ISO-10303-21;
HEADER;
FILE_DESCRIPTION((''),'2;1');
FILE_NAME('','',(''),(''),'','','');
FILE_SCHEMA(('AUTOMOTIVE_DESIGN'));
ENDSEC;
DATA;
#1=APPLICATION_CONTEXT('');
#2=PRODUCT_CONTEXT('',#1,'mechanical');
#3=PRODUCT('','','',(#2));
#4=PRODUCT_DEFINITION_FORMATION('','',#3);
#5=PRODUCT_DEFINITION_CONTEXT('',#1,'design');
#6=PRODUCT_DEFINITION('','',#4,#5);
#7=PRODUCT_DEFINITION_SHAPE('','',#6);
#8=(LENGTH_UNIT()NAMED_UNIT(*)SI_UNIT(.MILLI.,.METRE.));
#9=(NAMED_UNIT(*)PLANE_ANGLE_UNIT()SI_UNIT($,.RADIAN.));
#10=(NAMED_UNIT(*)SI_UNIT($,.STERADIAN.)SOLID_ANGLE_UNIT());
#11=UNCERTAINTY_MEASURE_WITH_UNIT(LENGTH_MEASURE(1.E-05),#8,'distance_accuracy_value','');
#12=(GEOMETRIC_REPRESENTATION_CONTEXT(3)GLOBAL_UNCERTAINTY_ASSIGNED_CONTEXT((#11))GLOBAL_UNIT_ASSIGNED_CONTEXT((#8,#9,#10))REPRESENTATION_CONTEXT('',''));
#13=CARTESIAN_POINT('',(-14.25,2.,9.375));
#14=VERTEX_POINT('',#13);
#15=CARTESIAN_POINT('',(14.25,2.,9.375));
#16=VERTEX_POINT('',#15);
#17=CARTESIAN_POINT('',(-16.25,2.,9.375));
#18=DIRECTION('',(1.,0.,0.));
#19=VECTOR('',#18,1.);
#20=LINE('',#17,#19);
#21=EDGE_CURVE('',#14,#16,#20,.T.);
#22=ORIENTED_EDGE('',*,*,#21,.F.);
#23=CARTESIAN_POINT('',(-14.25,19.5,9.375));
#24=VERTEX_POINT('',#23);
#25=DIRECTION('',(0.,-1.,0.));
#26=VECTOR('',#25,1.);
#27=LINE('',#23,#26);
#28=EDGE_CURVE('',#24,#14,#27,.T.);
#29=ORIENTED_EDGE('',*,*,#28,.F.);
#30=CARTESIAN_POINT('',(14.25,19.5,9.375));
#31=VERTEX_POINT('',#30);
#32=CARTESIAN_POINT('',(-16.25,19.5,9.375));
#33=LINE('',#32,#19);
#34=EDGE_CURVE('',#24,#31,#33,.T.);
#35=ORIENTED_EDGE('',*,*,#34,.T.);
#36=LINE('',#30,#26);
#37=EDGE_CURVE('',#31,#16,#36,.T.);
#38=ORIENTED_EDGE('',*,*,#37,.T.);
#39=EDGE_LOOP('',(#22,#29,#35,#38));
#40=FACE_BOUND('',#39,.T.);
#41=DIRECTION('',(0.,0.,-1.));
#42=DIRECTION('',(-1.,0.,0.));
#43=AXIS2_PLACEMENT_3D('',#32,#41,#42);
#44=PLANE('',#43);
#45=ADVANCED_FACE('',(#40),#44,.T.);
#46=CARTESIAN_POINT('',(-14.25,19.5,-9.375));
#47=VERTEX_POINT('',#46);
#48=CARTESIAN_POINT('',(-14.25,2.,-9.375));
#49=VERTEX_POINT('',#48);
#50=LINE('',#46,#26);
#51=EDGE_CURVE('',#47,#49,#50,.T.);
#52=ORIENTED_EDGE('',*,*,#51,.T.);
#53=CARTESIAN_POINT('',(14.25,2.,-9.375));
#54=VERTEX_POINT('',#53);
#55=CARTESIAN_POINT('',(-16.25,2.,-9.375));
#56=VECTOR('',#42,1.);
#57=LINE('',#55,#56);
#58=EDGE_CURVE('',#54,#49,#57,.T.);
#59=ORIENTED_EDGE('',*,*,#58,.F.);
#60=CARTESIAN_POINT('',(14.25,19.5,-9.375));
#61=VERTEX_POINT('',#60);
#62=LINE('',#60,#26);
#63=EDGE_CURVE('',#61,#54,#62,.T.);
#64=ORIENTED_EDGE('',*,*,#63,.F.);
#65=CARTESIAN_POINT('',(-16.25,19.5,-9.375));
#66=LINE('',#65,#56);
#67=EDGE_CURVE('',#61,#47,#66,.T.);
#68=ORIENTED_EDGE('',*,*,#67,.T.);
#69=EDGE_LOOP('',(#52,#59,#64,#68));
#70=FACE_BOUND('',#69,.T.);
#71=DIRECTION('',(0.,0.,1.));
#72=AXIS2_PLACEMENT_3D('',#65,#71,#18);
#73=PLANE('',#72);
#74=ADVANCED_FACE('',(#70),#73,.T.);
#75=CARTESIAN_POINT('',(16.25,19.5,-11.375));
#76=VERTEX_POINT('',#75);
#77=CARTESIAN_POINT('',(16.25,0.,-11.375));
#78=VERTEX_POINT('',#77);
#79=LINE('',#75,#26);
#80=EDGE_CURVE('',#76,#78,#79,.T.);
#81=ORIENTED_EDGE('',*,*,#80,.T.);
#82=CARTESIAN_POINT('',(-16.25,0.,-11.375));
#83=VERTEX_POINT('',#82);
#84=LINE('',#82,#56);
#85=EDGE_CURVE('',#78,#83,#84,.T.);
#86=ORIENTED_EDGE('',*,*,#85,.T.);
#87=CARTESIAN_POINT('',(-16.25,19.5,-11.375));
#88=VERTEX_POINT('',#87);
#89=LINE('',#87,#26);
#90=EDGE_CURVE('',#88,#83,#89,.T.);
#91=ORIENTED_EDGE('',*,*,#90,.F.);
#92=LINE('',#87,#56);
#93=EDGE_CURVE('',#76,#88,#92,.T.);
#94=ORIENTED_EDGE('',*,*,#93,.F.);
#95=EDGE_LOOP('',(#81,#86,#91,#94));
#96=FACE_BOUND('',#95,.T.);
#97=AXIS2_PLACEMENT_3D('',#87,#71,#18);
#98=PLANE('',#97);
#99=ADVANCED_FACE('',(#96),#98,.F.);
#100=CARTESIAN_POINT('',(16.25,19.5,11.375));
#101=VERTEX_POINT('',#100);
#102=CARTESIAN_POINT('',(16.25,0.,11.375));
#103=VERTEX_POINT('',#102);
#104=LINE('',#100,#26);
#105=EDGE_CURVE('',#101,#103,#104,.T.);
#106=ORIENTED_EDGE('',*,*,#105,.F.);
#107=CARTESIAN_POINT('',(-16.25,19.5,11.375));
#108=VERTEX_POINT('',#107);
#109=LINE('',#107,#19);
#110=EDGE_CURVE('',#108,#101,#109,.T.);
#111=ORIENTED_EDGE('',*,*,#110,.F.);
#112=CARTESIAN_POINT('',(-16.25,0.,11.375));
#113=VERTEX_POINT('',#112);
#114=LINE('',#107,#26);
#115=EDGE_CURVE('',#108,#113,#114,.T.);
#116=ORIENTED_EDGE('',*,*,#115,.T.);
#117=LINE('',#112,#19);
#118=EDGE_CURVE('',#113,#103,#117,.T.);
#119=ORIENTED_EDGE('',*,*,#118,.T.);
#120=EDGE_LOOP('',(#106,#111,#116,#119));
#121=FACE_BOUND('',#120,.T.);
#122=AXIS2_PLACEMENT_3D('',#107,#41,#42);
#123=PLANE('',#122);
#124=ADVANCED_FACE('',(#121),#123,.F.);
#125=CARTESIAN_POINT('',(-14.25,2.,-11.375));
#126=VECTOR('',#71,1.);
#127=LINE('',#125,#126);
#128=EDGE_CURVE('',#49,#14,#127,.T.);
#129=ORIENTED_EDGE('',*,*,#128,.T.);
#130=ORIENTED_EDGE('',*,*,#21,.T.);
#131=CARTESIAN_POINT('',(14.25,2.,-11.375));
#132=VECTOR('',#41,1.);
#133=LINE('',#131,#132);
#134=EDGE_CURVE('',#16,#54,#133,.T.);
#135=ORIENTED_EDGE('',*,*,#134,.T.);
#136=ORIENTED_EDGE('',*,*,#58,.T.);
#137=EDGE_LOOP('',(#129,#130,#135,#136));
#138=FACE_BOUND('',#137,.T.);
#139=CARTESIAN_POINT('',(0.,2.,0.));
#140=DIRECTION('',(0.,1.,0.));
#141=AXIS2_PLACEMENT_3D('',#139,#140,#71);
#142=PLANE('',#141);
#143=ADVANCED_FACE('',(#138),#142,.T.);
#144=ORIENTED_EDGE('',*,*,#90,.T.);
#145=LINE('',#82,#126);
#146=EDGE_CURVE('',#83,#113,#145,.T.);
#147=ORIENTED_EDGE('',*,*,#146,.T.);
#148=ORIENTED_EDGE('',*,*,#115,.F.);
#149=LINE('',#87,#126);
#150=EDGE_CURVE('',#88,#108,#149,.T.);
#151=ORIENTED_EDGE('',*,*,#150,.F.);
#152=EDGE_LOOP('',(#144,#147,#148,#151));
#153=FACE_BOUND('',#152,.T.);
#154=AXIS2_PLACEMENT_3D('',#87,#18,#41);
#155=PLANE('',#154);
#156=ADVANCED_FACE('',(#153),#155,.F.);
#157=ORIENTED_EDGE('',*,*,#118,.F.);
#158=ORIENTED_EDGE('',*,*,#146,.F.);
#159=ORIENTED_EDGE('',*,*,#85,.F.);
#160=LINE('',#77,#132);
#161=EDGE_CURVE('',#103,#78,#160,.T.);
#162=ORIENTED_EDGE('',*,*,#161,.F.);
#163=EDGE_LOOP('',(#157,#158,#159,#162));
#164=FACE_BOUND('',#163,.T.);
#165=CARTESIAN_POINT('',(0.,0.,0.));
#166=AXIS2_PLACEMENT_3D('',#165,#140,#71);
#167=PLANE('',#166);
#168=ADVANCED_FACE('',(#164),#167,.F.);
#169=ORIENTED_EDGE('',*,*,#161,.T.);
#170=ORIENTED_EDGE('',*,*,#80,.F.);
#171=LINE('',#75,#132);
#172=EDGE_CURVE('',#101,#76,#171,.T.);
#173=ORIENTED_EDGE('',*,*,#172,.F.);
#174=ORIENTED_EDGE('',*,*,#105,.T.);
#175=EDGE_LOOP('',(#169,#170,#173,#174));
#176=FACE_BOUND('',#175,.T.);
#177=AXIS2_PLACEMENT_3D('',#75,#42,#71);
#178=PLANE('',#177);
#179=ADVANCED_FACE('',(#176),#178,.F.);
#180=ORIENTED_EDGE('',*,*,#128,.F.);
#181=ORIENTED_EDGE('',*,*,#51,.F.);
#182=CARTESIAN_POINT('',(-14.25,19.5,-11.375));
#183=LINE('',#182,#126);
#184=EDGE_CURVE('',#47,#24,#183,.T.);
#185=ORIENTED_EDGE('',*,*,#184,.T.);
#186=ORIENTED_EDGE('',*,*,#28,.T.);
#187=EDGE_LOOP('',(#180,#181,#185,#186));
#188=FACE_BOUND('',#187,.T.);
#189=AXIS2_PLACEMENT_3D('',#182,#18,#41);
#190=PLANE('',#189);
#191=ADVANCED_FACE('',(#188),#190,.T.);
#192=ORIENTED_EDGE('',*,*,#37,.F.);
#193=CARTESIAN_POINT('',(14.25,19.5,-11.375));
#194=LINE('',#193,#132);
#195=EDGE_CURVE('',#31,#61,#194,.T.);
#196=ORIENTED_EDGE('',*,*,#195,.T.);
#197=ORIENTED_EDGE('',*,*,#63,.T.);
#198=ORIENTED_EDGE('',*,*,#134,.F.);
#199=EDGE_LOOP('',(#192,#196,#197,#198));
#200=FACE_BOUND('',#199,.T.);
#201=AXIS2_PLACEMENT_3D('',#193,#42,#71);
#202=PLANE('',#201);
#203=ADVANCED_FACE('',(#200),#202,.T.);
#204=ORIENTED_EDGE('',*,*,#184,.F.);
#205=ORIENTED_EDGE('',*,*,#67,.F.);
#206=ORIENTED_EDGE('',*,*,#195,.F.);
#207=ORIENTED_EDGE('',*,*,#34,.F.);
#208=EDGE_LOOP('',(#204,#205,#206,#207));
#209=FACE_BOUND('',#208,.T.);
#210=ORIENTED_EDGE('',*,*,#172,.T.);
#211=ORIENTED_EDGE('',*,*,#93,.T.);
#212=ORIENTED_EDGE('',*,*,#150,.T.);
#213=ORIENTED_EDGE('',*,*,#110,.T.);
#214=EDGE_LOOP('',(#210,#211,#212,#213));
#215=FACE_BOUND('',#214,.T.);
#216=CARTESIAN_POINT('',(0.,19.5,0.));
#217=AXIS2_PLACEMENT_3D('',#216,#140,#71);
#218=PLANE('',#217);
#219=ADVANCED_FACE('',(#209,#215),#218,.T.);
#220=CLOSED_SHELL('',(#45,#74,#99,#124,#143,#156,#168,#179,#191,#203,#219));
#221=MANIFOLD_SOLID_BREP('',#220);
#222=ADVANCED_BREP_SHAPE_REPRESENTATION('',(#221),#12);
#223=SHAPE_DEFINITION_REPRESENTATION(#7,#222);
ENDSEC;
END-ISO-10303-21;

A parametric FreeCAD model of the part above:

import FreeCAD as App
import Part
import Sketcher
Q = App.Units.Quantity


def faces_at(feature, points):
    """Names of the faces that lie closest to the given points."""
    faces = feature.Shape.Faces
    near = lambda p: min(range(len(faces)), key=lambda i: faces[i].distToShape(Part.Vertex(*p))[0])
    return sorted({f"Face{near(p) + 1}" for p in points})


def add_polygon(sketch, points):
    """Adds a closed chain of lines whose ends are joined by coincident constraints."""
    first, n = sketch.GeometryCount, len(points)
    for a, b in zip(points, points[1:] + points[:1]):
        sketch.addGeometry(Part.LineSegment(App.Vector(*a, 0), App.Vector(*b, 0)), False)
    for i in range(n):
        sketch.addConstraint(Sketcher.Constraint("Coincident", first + i, 2, first + (i + 1) % n, 1))

doc = App.newDocument("Part")
params = doc.addObject("Spreadsheet::Sheet", "Params")
for row, (alias, value) in enumerate([
    ("sketch1_width", "32.5 mm"),
    ("sketch1_height", "22.75 mm"),
    ("pad1_length", "19.5 mm"),
    ("thickness_wall", "2 mm"),
], start=1):
    params.set(f"A{row}", alias)
    params.set(f"B{row}", "=" + value)
    params.setAlias(f"B{row}", alias)

body = doc.addObject("PartDesign::Body", "Body")

# Sketch on XZ plane
sketch1 = body.newObject("Sketcher::SketchObject", "Sketch")
sketch1.AttachmentSupport = (doc.getObject("XZ_Plane"), [""])
sketch1.MapMode = "FlatFace"
add_polygon(sketch1, [(-16, -11), (-16, 11), (16, 11), (16, -11)])  # lines 0-3
sketch1.addConstraint(Sketcher.Constraint("Vertical", 0))
sketch1.addConstraint(Sketcher.Constraint("Horizontal", 1))
sketch1.addConstraint(Sketcher.Constraint("Vertical", 2))
sketch1.addConstraint(Sketcher.Constraint("Horizontal", 3))
sketch1.addConstraint(Sketcher.Constraint("Symmetric", 0, 2, 2, 2, -1, 1))
sketch1.addConstraint(Sketcher.Constraint("DistanceX", 1, 1, 1, 2, Q("32.5 mm")))
sketch1.addConstraint(Sketcher.Constraint("DistanceY", 0, 1, 0, 2, Q("22.75 mm")))
sketch1.setExpression("Constraints[9]", "Params.sketch1_width")
sketch1.setExpression("Constraints[10]", "Params.sketch1_height")
pad1 = body.newObject("PartDesign::Pad", "Pad")
pad1.Profile = sketch1
pad1.setExpression("Length", "Params.pad1_length")
pad1.Reversed = True
doc.recompute()

thickness = body.newObject("PartDesign::Thickness", "Thickness")
thickness.Base = (pad1, faces_at(pad1, [(0, 19.5, 0)]))
thickness.setExpression("Value", "Params.thickness_wall")
thickness.Reversed = True
thickness.Join = "Intersection"

doc.recompute()
